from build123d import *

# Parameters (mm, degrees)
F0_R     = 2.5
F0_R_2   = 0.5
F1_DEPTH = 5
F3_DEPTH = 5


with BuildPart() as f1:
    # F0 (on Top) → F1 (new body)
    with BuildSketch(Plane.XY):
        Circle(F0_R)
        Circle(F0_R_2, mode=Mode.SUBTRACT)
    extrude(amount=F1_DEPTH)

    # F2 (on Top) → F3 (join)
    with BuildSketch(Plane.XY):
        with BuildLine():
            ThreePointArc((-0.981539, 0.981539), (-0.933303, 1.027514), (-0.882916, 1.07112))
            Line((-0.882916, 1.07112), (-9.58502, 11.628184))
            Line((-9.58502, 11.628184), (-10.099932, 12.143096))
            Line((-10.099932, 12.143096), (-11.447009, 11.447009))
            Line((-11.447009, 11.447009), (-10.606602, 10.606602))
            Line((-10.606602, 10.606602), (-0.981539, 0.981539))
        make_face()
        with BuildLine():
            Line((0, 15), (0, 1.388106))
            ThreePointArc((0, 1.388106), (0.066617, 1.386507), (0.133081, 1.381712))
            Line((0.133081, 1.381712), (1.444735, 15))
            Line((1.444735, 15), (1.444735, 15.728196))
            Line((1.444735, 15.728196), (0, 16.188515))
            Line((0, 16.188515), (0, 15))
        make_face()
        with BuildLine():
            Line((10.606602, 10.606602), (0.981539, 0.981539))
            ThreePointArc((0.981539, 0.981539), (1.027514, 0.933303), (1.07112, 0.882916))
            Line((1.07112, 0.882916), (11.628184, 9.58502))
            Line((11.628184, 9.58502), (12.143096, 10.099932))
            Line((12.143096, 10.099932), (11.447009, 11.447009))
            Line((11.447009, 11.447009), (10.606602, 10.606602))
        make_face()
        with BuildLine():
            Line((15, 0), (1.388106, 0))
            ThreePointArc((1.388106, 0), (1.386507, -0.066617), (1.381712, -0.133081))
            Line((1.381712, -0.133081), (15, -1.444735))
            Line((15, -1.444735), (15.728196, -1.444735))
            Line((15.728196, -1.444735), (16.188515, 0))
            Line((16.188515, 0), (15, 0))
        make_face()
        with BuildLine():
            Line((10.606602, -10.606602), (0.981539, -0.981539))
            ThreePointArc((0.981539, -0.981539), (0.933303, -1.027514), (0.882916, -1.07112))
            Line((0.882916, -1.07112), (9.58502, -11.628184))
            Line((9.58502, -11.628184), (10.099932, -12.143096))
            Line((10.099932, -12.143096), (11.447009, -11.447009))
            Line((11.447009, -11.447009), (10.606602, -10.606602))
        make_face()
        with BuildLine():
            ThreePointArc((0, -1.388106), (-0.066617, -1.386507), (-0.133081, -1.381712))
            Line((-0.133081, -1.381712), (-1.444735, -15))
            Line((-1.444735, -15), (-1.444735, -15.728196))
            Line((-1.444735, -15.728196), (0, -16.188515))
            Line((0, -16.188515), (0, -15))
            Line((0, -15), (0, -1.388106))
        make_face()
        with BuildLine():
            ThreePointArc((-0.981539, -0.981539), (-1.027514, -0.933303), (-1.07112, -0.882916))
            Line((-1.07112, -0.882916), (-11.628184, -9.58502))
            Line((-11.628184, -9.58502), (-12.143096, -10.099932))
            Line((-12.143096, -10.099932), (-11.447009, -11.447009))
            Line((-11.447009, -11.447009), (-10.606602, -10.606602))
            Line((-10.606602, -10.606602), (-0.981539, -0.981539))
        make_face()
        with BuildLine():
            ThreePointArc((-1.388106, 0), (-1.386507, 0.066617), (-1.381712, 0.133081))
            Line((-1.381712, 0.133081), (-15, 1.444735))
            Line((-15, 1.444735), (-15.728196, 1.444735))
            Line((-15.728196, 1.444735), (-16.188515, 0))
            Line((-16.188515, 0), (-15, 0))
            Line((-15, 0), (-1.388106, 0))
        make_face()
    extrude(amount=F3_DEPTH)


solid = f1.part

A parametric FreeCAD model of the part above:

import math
import FreeCAD as App
import Part
import Sketcher

V = App.Vector

doc = App.newDocument("Part")
body = doc.addObject("PartDesign::Body", "Body")

sketch1 = doc.addObject("Sketcher::SketchObject", "Sketch")
body.addObject(sketch1)
sketch1.AttachmentSupport = (doc.XY_Plane, [""])
sketch1.MapMode = "FlatFace"
sketch1.addGeometry(Part.Circle(V(0, 0, 0), V(0, 0, 1), 2.5), False)
sketch1.addGeometry(Part.Circle(V(0, 0, 0), V(0, 0, 1), 0.5), False)
sketch1.addConstraint(Sketcher.Constraint("Coincident", 0, 3, -1, 1))
sketch1.addConstraint(Sketcher.Constraint("Coincident", 1, 3, -1, 1))
sketch1.addConstraint(Sketcher.Constraint("Diameter", 0, 5.0))
sketch1.addConstraint(Sketcher.Constraint("Diameter", 1, 1.0))
pad1 = doc.addObject("PartDesign::Pad", "Pad")
body.addObject(pad1)
pad1.Profile = sketch1
pad1.Length = 5

sketch2 = doc.addObject("Sketcher::SketchObject", "Sketch001")
body.addObject(sketch2)
sketch2.AttachmentSupport = (doc.XY_Plane, [""])
sketch2.MapMode = "FlatFace"
sketch2.addGeometry(Part.ArcOfCircle(Part.Circle(V(-0.000279, 0.000313, 0), V(0, 0, 1), 1.387687), math.radians(129.497836), math.radians(135.001002)), False)
sketch2.addGeometry(Part.LineSegment(V(-0.882916, 1.07112, 0), V(-9.58502, 11.628184, 0)), False)
sketch2.addGeometry(Part.LineSegment(V(-9.58502, 11.628184, 0), V(-10.099932, 12.143096, 0)), False)
sketch2.addGeometry(Part.LineSegment(V(-10.099932, 12.143096, 0), V(-11.447009, 11.447009, 0)), False)
sketch2.addGeometry(Part.LineSegment(V(-11.447009, 11.447009, 0), V(-0.981539, 0.981539, 0)), False)
sketch2.addGeometry(Part.ArcOfCircle(Part.Circle(V(0.000017, 0.000328, 0), V(0, 0, 1), 1.387778), math.radians(84.49787), math.radians(90.000702)), False)
sketch2.addGeometry(Part.LineSegment(V(0.133081, 1.381712, 0), V(1.444735, 15, 0)), False)
sketch2.addGeometry(Part.LineSegment(V(1.444735, 15, 0), V(1.444735, 15.728196, 0)), False)
sketch2.addGeometry(Part.LineSegment(V(1.444735, 15.728196, 0), V(0, 16.188515, 0)), False)
sketch2.addGeometry(Part.LineSegment(V(0, 16.188515, 0), V(0, 1.388106, 0)), False)
sketch2.addGeometry(Part.ArcOfCircle(Part.Circle(V(0.000313, 0.000279, 0), V(0, 0, 1), 1.387687), math.radians(39.497836), math.radians(45.001002)), False)
sketch2.addGeometry(Part.LineSegment(V(1.07112, 0.882916, 0), V(11.628184, 9.58502, 0)), False)
sketch2.addGeometry(Part.LineSegment(V(11.628184, 9.58502, 0), V(12.143096, 10.099932, 0)), False)
sketch2.addGeometry(Part.LineSegment(V(12.143096, 10.099932, 0), V(11.447009, 11.447009, 0)), False)
sketch2.addGeometry(Part.LineSegment(V(11.447009, 11.447009, 0), V(0.981539, 0.981539, 0)), False)
sketch2.addGeometry(Part.ArcOfCircle(Part.Circle(V(0.000328, -0.000017, 0), V(0, 0, 1), 1.387778), math.radians(-5.50213), math.radians(0.000702)), False)
sketch2.addGeometry(Part.LineSegment(V(1.381712, -0.133081, 0), V(15, -1.444735, 0)), False)
sketch2.addGeometry(Part.LineSegment(V(15, -1.444735, 0), V(15.728196, -1.444735, 0)), False)
sketch2.addGeometry(Part.LineSegment(V(15.728196, -1.444735, 0), V(16.188515, 0, 0)), False)
sketch2.addGeometry(Part.LineSegment(V(16.188515, 0, 0), V(1.388106, 0, 0)), False)
sketch2.addGeometry(Part.ArcOfCircle(Part.Circle(V(0.000279, -0.000313, 0), V(0, 0, 1), 1.387687), math.radians(-50.502164), math.radians(-44.998998)), False)
sketch2.addGeometry(Part.LineSegment(V(0.882916, -1.07112, 0), V(9.58502, -11.628184, 0)), False)
sketch2.addGeometry(Part.LineSegment(V(9.58502, -11.628184, 0), V(10.099932, -12.143096, 0)), False)
sketch2.addGeometry(Part.LineSegment(V(10.099932, -12.143096, 0), V(11.447009, -11.447009, 0)), False)
sketch2.addGeometry(Part.LineSegment(V(11.447009, -11.447009, 0), V(0.981539, -0.981539, 0)), False)
sketch2.addGeometry(Part.ArcOfCircle(Part.Circle(V(-0.000017, -0.000328, 0), V(0, 0, 1), 1.387778), math.radians(-95.50213), math.radians(-89.999298)), False)
sketch2.addGeometry(Part.LineSegment(V(-0.133081, -1.381712, 0), V(-1.444735, -15, 0)), False)
sketch2.addGeometry(Part.LineSegment(V(-1.444735, -15, 0), V(-1.444735, -15.728196, 0)), False)
sketch2.addGeometry(Part.LineSegment(V(-1.444735, -15.728196, 0), V(0, -16.188515, 0)), False)
sketch2.addGeometry(Part.LineSegment(V(0, -16.188515, 0), V(0, -1.388106, 0)), False)
sketch2.addGeometry(Part.ArcOfCircle(Part.Circle(V(-0.000313, -0.000279, 0), V(0, 0, 1), 1.387687), math.radians(-140.502164), math.radians(-134.998998)), False)
sketch2.addGeometry(Part.LineSegment(V(-1.07112, -0.882916, 0), V(-11.628184, -9.58502, 0)), False)
sketch2.addGeometry(Part.LineSegment(V(-11.628184, -9.58502, 0), V(-12.143096, -10.099932, 0)), False)
sketch2.addGeometry(Part.LineSegment(V(-12.143096, -10.099932, 0), V(-11.447009, -11.447009, 0)), False)
sketch2.addGeometry(Part.LineSegment(V(-11.447009, -11.447009, 0), V(-0.981539, -0.981539, 0)), False)
sketch2.addGeometry(Part.ArcOfCircle(Part.Circle(V(-0.000328, 0.000017, 0), V(0, 0, 1), 1.387778), math.radians(174.49787), math.radians(180.000702)), False)
sketch2.addGeometry(Part.LineSegment(V(-1.381712, 0.133081, 0), V(-15, 1.444735, 0)), False)
sketch2.addGeometry(Part.LineSegment(V(-15, 1.444735, 0), V(-15.728196, 1.444735, 0)), False)
sketch2.addGeometry(Part.LineSegment(V(-15.728196, 1.444735, 0), V(-16.188515, 0, 0)), False)
sketch2.addGeometry(Part.LineSegment(V(-16.188515, 0, 0), V(-1.388106, 0, 0)), False)
sketch2.addConstraint(Sketcher.Constraint("Coincident", 0, 1, 1, 1))
sketch2.addConstraint(Sketcher.Constraint("Coincident", 1, 2, 2, 1))
sketch2.addConstraint(Sketcher.Constraint("Coincident", 2, 2, 3, 1))
sketch2.addConstraint(Sketcher.Constraint("Coincident", 3, 2, 4, 1))
sketch2.addConstraint(Sketcher.Constraint("Coincident", 4, 2, 0, 2))
sketch2.addConstraint(Sketcher.Constraint("Coincident", 5, 1, 6, 1))
sketch2.addConstraint(Sketcher.Constraint("Coincident", 6, 2, 7, 1))
sketch2.addConstraint(Sketcher.Constraint("Coincident", 7, 2, 8, 1))
sketch2.addConstraint(Sketcher.Constraint("Coincident", 8, 2, 9, 1))
sketch2.addConstraint(Sketcher.Constraint("Coincident", 9, 2, 5, 2))
sketch2.addConstraint(Sketcher.Constraint("Coincident", 10, 1, 11, 1))
sketch2.addConstraint(Sketcher.Constraint("Coincident", 11, 2, 12, 1))
sketch2.addConstraint(Sketcher.Constraint("Coincident", 12, 2, 13, 1))
sketch2.addConstraint(Sketcher.Constraint("Coincident", 13, 2, 14, 1))
sketch2.addConstraint(Sketcher.Constraint("Coincident", 14, 2, 10, 2))
sketch2.addConstraint(Sketcher.Constraint("Coincident", 15, 1, 16, 1))
sketch2.addConstraint(Sketcher.Constraint("Coincident", 16, 2, 17, 1))
sketch2.addConstraint(Sketcher.Constraint("Coincident", 17, 2, 18, 1))
sketch2.addConstraint(Sketcher.Constraint("Coincident", 18, 2, 19, 1))
sketch2.addConstraint(Sketcher.Constraint("Coincident", 19, 2, 15, 2))
sketch2.addConstraint(Sketcher.Constraint("Coincident", 20, 1, 21, 1))
sketch2.addConstraint(Sketcher.Constraint("Coincident", 21, 2, 22, 1))
sketch2.addConstraint(Sketcher.Constraint("Coincident", 22, 2, 23, 1))
sketch2.addConstraint(Sketcher.Constraint("Coincident", 23, 2, 24, 1))
sketch2.addConstraint(Sketcher.Constraint("Coincident", 24, 2, 20, 2))
sketch2.addConstraint(Sketcher.Constraint("Coincident", 25, 1, 26, 1))
sketch2.addConstraint(Sketcher.Constraint("Coincident", 26, 2, 27, 1))
sketch2.addConstraint(Sketcher.Constraint("Coincident", 27, 2, 28, 1))
sketch2.addConstraint(Sketcher.Constraint("Coincident", 28, 2, 29, 1))
sketch2.addConstraint(Sketcher.Constraint("Coincident", 29, 2, 25, 2))
sketch2.addConstraint(Sketcher.Constraint("Coincident", 30, 1, 31, 1))
sketch2.addConstraint(Sketcher.Constraint("Coincident", 31, 2, 32, 1))
sketch2.addConstraint(Sketcher.Constraint("Coincident", 32, 2, 33, 1))
sketch2.addConstraint(Sketcher.Constraint("Coincident", 33, 2, 34, 1))
sketch2.addConstraint(Sketcher.Constraint("Coincident", 34, 2, 30, 2))
sketch2.addConstraint(Sketcher.Constraint("Coincident", 35, 1, 36, 1))
sketch2.addConstraint(Sketcher.Constraint("Coincident", 36, 2, 37, 1))
sketch2.addConstraint(Sketcher.Constraint("Coincident", 37, 2, 38, 1))
sketch2.addConstraint(Sketcher.Constraint("Coincident", 38, 2, 39, 1))
sketch2.addConstraint(Sketcher.Constraint("Coincident", 39, 2, 35, 2))
sketch2.addConstraint(Sketcher.Constraint("Vertical", 7))
sketch2.addConstraint(Sketcher.Constraint("Vertical", 9))
sketch2.addConstraint(Sketcher.Constraint("Horizontal", 17))
sketch2.addConstraint(Sketcher.Constraint("Horizontal", 19))
sketch2.addConstraint(Sketcher.Constraint("Vertical", 27))
sketch2.addConstraint(Sketcher.Constraint("Vertical", 29))
sketch2.addConstraint(Sketcher.Constraint("Horizontal", 37))
sketch2.addConstraint(Sketcher.Constraint("Horizontal", 39))
sketch2.addConstraint(Sketcher.Constraint("PointOnObject", 8, 2, -2))
sketch2.addConstraint(Sketcher.Constraint("PointOnObject", 18, 2, -1))
sketch2.addConstraint(Sketcher.Constraint("PointOnObject", 28, 2, -2))
sketch2.addConstraint(Sketcher.Constraint("PointOnObject", 38, 2, -1))
sketch2.addConstraint(Sketcher.Constraint("DistanceY", -1, 1, 6, 2, 15.0))
sketch2.addConstraint(Sketcher.Constraint("DistanceX", -1, 1, 16, 2, 15.0))
sketch2.addConstraint(Sketcher.Constraint("DistanceY", 26, 2, -1, 1, 15.0))
sketch2.addConstraint(Sketcher.Constraint("DistanceX", 36, 2, -1, 1, 15.0))
sketch2.addConstraint(Sketcher.Constraint("Radius", 5, 1.387778))
sketch2.addConstraint(Sketcher.Constraint("Radius", 15, 1.387778))
sketch2.addConstraint(Sketcher.Constraint("Radius", 25, 1.387778))
sketch2.addConstraint(Sketcher.Constraint("Radius", 35, 1.387778))
sketch2.addConstraint(Sketcher.Constraint("Radius", 0, 1.387687))
sketch2.addConstraint(Sketcher.Constraint("Radius", 10, 1.387687))
sketch2.addConstraint(Sketcher.Constraint("Radius", 20, 1.387687))
sketch2.addConstraint(Sketcher.Constraint("Radius", 30, 1.387687))
sketch2.addConstraint(Sketcher.Constraint("DistanceX", 19, 2, 19, 1, 14.800409))
sketch2.addConstraint(Sketcher.Constraint("DistanceX", 39, 1, 39, 2, 14.800409))
sketch2.addConstraint(Sketcher.Constraint("DistanceY", 9, 2, 9, 1, 14.800409))
sketch2.addConstraint(Sketcher.Constraint("DistanceY", 29, 1, 29, 2, 14.800409))
sketch2.addConstraint(Sketcher.Constraint("DistanceY", 30, 3, 0, 1, 1.071399))
sketch2.addConstraint(Sketcher.Constraint("DistanceY", 0, 3, 5, 1, 1.381399))
sketch2.addConstraint(Sketcher.Constraint("DistanceY", 2, 2, 7, 2, 3.5851))
sketch2.addConstraint(Sketcher.Constraint("DistanceX", 10, 3, 15, 1, 1.381399))
sketch2.addConstraint(Sketcher.Constraint("DistanceX", 12, 2, 17, 2, 3.5851))
sketch2.addConstraint(Sketcher.Constraint("DistanceY", 25, 1, 20, 3, 1.381399))
sketch2.addConstraint(Sketcher.Constraint("DistanceY", 27, 2, 22, 2, 3.5851))
sketch2.addConstraint(Sketcher.Constraint("DistanceX", 37, 2, 32, 2, 3.5851))
sketch2.addConstraint(Sketcher.Constraint("Distance", 1, 13.681309))
sketch2.addConstraint(Sketcher.Constraint("Distance", 4, 14.80041))
sketch2.addConstraint(Sketcher.Constraint("Distance", 6, 13.681309))
sketch2.addConstraint(Sketcher.Constraint("Distance", 11, 13.681309))
sketch2.addConstraint(Sketcher.Constraint("Distance", 14, 14.80041))
sketch2.addConstraint(Sketcher.Constraint("Distance", 16, 13.681309))
sketch2.addConstraint(Sketcher.Constraint("Distance", 21, 13.681309))
sketch2.addConstraint(Sketcher.Constraint("Distance", 24, 14.80041))
sketch2.addConstraint(Sketcher.Constraint("Distance", 26, 13.681309))
sketch2.addConstraint(Sketcher.Constraint("Distance", 31, 13.681309))
sketch2.addConstraint(Sketcher.Constraint("Distance", 34, 14.80041))
sketch2.addConstraint(Sketcher.Constraint("Distance", 36, 13.681309))
sketch2.addConstraint(Sketcher.Constraint("DistanceX", 17, 1, 17, 2, 0.728196))
sketch2.addConstraint(Sketcher.Constraint("DistanceX", 37, 2, 37, 1, 0.728196))
sketch2.addConstraint(Sketcher.Constraint("DistanceY", 7, 1, 7, 2, 0.728196))
sketch2.addConstraint(Sketcher.Constraint("DistanceY", 27, 2, 27, 1, 0.728196))
sketch2.addConstraint(Sketcher.Constraint("DistanceX", 0, 3, -1, 1, 0.000279))
sketch2.addConstraint(Sketcher.Constraint("DistanceY", -1, 1, 10, 3, 0.000279))
sketch2.addConstraint(Sketcher.Constraint("DistanceX", -1, 1, 20, 3, 0.000279))
sketch2.addConstraint(Sketcher.Constraint("DistanceY", 30, 3, -1, 1, 0.000279))
sketch2.addConstraint(Sketcher.Constraint("DistanceX", 1, 2, -1, 1, 9.58502))
sketch2.addConstraint(Sketcher.Constraint("DistanceX", 3, 2, -1, 1, 11.447009))
sketch2.addConstraint(Sketcher.Constraint("DistanceY", -1, 1, 3, 2, 11.447009))
sketch2.addConstraint(Sketcher.Constraint("DistanceX", 4, 2, -1, 1, 0.981539))
sketch2.addConstraint(Sketcher.Constraint("DistanceX", -1, 1, 5, 1, 0.133081))
sketch2.addConstraint(Sketcher.Constraint("DistanceX", -1, 1, 10, 1, 1.07112))
sketch2.addConstraint(Sketcher.Constraint("DistanceY", -1, 1, 11, 2, 9.58502))
sketch2.addConstraint(Sketcher.Constraint("DistanceX", -1, 1, 13, 2, 11.447009))
sketch2.addConstraint(Sketcher.Constraint("DistanceY", -1, 1, 13, 2, 11.447009))
sketch2.addConstraint(Sketcher.Constraint("DistanceX", -1, 1, 14, 2, 0.981539))
sketch2.addConstraint(Sketcher.Constraint("DistanceY", 15, 1, -1, 1, 0.133081))
sketch2.addConstraint(Sketcher.Constraint("DistanceY", 20, 1, -1, 1, 1.07112))
sketch2.addConstraint(Sketcher.Constraint("DistanceX", -1, 1, 21, 2, 9.58502))
sketch2.addConstraint(Sketcher.Constraint("DistanceX", -1, 1, 23, 2, 11.447009))
sketch2.addConstraint(Sketcher.Constraint("DistanceY", 23, 2, -1, 1, 11.447009))
sketch2.addConstraint(Sketcher.Constraint("DistanceX", -1, 1, 24, 2, 0.981539))
sketch2.addConstraint(Sketcher.Constraint("DistanceX", 25, 1, -1, 1, 0.133081))
sketch2.addConstraint(Sketcher.Constraint("DistanceX", 30, 1, -1, 1, 1.07112))
sketch2.addConstraint(Sketcher.Constraint("DistanceY", 31, 2, -1, 1, 9.58502))
sketch2.addConstraint(Sketcher.Constraint("DistanceX", 33, 2, -1, 1, 11.447009))
sketch2.addConstraint(Sketcher.Constraint("DistanceY", 33, 2, -1, 1, 11.447009))
sketch2.addConstraint(Sketcher.Constraint("DistanceX", 34, 2, -1, 1, 0.981539))
sketch2.addConstraint(Sketcher.Constraint("DistanceX", 35, 1, -1, 1, 1.381712))
sketch2.addConstraint(Sketcher.Constraint("DistanceY", -1, 1, 35, 1, 0.133081))
sketch2.addConstraint(Sketcher.Constraint("DistanceX", 5, 3, 15, 3, 0.000311))
sketch2.addConstraint(Sketcher.Constraint("DistanceY", 15, 3, 0, 3, 0.00033))
sketch2.addConstraint(Sketcher.Constraint("DistanceY", 25, 3, 15, 3, 0.000311))
sketch2.addConstraint(Sketcher.Constraint("DistanceY", 35, 3, 5, 3, 0.000311))
sketch2.addConstraint(Sketcher.Constraint("DistanceX", 2, 2, 5, 3, 10.099949))
sketch2.addConstraint(Sketcher.Constraint("Distance", 12, 0.728196))
sketch2.addConstraint(Sketcher.Constraint("Distance", 22, 0.728196))
sketch2.addConstraint(Sketcher.Constraint("Distance", 32, 0.728196))
pad2 = doc.addObject("PartDesign::Pad", "Pad001")
body.addObject(pad2)
pad2.Profile = sketch2
pad2.Length = 5

doc.recompute()
